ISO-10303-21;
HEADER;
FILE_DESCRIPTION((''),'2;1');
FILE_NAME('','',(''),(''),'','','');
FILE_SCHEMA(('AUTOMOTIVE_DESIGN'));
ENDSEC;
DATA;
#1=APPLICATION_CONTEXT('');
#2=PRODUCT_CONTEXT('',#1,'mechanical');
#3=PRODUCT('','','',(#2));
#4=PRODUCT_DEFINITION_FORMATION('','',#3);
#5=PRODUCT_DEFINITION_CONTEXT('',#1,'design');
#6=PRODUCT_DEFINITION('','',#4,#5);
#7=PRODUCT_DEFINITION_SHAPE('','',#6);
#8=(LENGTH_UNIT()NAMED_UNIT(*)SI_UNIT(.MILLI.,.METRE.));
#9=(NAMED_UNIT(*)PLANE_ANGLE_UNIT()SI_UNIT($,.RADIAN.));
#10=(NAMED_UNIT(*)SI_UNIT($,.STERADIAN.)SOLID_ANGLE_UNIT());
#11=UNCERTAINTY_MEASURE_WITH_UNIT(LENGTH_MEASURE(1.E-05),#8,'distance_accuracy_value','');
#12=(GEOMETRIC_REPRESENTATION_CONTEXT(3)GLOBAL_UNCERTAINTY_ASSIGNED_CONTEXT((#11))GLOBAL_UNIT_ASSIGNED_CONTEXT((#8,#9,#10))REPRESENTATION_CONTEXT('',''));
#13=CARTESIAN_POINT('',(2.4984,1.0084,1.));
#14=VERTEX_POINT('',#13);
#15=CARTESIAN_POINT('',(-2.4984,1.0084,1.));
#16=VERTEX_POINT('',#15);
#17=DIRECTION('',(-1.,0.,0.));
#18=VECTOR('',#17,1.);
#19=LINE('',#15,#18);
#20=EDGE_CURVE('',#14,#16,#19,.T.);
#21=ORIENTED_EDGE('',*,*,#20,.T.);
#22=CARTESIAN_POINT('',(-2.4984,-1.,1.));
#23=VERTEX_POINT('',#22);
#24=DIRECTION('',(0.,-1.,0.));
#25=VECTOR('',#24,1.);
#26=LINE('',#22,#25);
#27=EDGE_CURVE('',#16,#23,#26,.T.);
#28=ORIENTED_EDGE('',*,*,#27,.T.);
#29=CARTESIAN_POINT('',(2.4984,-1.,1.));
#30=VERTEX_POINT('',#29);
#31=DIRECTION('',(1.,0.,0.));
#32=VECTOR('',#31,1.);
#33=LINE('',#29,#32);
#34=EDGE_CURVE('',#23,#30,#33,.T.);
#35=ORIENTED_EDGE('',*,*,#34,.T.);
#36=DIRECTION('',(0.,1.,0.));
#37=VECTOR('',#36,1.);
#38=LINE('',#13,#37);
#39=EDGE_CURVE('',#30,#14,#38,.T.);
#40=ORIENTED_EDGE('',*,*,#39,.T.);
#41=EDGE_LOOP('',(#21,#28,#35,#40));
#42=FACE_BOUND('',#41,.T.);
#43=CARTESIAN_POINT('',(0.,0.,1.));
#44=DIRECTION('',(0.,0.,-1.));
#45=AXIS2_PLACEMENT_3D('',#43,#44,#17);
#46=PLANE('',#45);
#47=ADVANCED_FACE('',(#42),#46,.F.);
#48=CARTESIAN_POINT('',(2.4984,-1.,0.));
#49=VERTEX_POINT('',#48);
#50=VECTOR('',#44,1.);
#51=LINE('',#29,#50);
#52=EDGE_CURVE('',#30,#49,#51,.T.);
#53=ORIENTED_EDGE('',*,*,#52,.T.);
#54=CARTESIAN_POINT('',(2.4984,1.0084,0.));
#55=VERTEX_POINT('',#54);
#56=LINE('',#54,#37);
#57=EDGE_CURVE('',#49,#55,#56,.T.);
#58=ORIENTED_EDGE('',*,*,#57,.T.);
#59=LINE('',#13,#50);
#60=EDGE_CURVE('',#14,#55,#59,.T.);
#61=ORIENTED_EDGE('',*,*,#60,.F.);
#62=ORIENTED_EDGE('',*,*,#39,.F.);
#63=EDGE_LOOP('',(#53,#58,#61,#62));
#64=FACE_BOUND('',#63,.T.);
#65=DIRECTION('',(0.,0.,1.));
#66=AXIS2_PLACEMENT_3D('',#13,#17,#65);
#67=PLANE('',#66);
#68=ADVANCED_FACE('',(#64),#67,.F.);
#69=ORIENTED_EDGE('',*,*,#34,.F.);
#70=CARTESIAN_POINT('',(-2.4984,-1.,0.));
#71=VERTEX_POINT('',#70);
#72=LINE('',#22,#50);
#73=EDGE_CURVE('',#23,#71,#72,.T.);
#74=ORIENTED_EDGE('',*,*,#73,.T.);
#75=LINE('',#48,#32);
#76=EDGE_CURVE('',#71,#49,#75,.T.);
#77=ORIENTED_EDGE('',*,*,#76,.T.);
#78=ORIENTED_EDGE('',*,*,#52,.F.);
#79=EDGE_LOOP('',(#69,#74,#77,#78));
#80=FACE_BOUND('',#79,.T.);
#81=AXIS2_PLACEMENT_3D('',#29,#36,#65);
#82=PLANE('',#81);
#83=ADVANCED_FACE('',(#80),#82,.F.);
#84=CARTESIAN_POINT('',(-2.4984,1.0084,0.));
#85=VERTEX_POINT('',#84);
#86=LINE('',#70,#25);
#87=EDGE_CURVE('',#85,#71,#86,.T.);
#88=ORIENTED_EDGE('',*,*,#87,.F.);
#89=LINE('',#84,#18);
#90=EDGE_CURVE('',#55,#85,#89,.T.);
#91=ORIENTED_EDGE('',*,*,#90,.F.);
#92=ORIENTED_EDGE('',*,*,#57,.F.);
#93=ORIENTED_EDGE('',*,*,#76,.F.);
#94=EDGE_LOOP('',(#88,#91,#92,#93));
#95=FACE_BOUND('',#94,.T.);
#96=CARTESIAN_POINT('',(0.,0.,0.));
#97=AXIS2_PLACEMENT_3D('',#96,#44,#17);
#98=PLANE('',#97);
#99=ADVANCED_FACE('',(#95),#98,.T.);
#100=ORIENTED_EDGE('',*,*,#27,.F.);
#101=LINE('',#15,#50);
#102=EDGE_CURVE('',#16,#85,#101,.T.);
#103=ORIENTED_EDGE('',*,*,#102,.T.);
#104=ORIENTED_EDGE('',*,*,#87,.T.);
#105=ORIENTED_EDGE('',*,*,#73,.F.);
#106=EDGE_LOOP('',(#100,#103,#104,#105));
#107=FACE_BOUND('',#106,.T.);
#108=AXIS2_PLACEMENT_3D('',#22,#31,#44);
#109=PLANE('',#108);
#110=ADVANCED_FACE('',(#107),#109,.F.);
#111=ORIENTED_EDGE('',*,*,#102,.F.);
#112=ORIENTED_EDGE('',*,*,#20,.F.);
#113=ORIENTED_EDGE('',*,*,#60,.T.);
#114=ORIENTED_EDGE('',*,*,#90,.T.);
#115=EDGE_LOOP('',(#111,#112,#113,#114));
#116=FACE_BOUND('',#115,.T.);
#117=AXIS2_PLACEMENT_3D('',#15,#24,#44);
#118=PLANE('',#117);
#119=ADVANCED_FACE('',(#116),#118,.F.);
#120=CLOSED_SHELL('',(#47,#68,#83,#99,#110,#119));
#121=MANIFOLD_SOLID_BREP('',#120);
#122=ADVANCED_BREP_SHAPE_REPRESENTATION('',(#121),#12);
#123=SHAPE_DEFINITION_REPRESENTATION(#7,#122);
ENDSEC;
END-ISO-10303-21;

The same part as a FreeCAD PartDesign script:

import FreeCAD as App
import Part
import Sketcher
from FreeCAD import Vector

doc = App.newDocument("Part")
body = doc.addObject("PartDesign::Body", "Body")

# Sketch on XY plane
sketch1 = body.newObject("Sketcher::SketchObject", "Sketch")
sketch1.AttachmentSupport = (doc.getObject("XY_Plane"), [""])
sketch1.MapMode = "FlatFace"
sketch1.addGeometry(Part.LineSegment(Vector(-2.4984, 1.0084, 0), Vector(-2.4984, -1, 0)), False)
sketch1.addGeometry(Part.LineSegment(Vector(-2.4984, -1, 0), Vector(2.4984, -1, 0)), False)
sketch1.addGeometry(Part.LineSegment(Vector(2.4984, -1, 0), Vector(2.4984, 1.0084, 0)), False)
sketch1.addGeometry(Part.LineSegment(Vector(2.4984, 1.0084, 0), Vector(-2.4984, 1.0084, 0)), False)
sketch1.addConstraint(Sketcher.Constraint("Coincident", 0, 2, 1, 1))
sketch1.addConstraint(Sketcher.Constraint("Coincident", 1, 2, 2, 1))
sketch1.addConstraint(Sketcher.Constraint("Coincident", 2, 2, 3, 1))
sketch1.addConstraint(Sketcher.Constraint("Coincident", 3, 2, 0, 1))
sketch1.addConstraint(Sketcher.Constraint("Vertical", 0))
sketch1.addConstraint(Sketcher.Constraint("Horizontal", 1))
sketch1.addConstraint(Sketcher.Constraint("Vertical", 2))
sketch1.addConstraint(Sketcher.Constraint("Horizontal", 3))
sketch1.addConstraint(Sketcher.Constraint("DistanceY", 0, 2, -1, 1, 1.0))
sketch1.addConstraint(Sketcher.Constraint("DistanceX", 1, 1, 1, 2, 4.9968))
sketch1.addConstraint(Sketcher.Constraint("DistanceY", 0, 2, 0, 1, 2.0084))
sketch1.addConstraint(Sketcher.Constraint("DistanceX", 0, 2, -1, 1, 2.4984))
pad1 = body.newObject("PartDesign::Pad", "Pad")
pad1.Profile = sketch1
pad1.Length = 1

doc.recompute()
